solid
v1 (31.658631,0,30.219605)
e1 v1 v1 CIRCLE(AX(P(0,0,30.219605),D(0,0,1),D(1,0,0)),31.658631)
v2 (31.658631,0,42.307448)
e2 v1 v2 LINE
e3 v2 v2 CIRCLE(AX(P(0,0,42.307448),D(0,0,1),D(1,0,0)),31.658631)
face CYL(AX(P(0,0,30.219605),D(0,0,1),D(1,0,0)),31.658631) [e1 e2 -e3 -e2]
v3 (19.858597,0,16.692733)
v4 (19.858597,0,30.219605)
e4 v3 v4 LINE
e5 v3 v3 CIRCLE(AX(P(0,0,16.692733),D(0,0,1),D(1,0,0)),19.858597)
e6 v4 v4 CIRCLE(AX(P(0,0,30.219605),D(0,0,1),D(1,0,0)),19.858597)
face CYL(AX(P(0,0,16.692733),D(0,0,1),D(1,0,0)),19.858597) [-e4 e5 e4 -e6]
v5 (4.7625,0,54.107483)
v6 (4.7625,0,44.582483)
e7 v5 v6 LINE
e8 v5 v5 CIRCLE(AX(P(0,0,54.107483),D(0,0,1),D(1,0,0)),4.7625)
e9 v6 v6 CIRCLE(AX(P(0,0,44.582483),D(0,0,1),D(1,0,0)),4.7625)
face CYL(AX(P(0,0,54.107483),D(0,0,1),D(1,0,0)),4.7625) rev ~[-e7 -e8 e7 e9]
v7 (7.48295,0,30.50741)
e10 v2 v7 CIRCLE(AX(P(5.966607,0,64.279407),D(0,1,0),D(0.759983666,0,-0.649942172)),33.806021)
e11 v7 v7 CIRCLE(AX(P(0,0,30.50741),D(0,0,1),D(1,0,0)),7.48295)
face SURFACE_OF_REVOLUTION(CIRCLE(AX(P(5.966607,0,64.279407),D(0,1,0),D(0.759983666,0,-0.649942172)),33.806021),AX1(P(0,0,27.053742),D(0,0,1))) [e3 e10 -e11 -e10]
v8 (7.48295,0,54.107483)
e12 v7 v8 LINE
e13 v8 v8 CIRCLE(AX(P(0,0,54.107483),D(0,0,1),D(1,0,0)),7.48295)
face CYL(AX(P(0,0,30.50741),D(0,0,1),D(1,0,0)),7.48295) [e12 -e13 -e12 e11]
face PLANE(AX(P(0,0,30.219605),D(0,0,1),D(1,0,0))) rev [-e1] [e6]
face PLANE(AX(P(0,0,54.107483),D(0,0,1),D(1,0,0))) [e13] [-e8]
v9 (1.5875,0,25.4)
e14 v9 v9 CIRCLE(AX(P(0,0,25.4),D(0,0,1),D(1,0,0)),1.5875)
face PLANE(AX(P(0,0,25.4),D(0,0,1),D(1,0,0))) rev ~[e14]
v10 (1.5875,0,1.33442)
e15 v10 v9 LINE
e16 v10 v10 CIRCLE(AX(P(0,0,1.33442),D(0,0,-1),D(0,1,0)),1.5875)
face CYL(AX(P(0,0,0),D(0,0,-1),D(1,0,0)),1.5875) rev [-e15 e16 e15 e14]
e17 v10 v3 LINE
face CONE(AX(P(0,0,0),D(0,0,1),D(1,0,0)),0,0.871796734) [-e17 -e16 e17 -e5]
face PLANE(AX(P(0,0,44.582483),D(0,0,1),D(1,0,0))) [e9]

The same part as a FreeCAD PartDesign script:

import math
import FreeCAD as App
import Part
import Sketcher

V = App.Vector
Q = App.Units.Quantity

doc = App.newDocument("Part")
body = doc.addObject("PartDesign::Body", "Body")

# Sketch on XZ plane
sketch1 = body.newObject("Sketcher::SketchObject", "Sketch")
sketch1.AttachmentSupport = (doc.getObject("XZ_Plane"), [""])
sketch1.MapMode = "FlatFace"
sketch1.addGeometry([
    Part.LineSegment(V(0, 54.107483, 0), V(0, 0, 0)),  # 0
    Part.LineSegment(V(0, 0, 0), V(19.858597, 16.692733, 0)),  # 1
    Part.LineSegment(V(19.858597, 16.692733, 0), V(19.858597, 30.219605, 0)),  # 2
    Part.LineSegment(V(19.858597, 30.219605, 0), V(31.658631, 30.219605, 0)),  # 3
    Part.LineSegment(V(31.658631, 30.219605, 0), V(31.658631, 42.307448, 0)),  # 4
    Part.ArcOfCircle(Part.Circle(V(5.966607, 64.279407, 0), V(0, 0, 1), 33.806021), math.radians(-87.42918), math.radians(-40.537242)),  # 5
    Part.LineSegment(V(7.48295, 30.50741, 0), V(7.48295, 54.107483, 0)),  # 6
    Part.LineSegment(V(7.48295, 54.107483, 0), V(0, 54.107483, 0)),  # 7
], False)
sketch1.addConstraint([
    Sketcher.Constraint("Coincident", 0, 2, 1, 1),
    Sketcher.Constraint("Coincident", 1, 2, 2, 1),
    Sketcher.Constraint("Coincident", 2, 2, 3, 1),
    Sketcher.Constraint("Coincident", 3, 2, 4, 1),
    Sketcher.Constraint("Coincident", 4, 2, 5, 2),
    Sketcher.Constraint("Coincident", 5, 1, 6, 1),
    Sketcher.Constraint("Coincident", 6, 2, 7, 1),
    Sketcher.Constraint("Coincident", 7, 2, 0, 1),
    Sketcher.Constraint("Vertical", 0),
    Sketcher.Constraint("Vertical", 2),
    Sketcher.Constraint("Horizontal", 3),
    Sketcher.Constraint("Vertical", 4),
    Sketcher.Constraint("Vertical", 6),
    Sketcher.Constraint("Horizontal", 7),
    Sketcher.Constraint("Coincident", 0, 2, -1, 1),
    Sketcher.Constraint("Radius", 5, 33.806021),
    Sketcher.Constraint("DistanceX", 7, 2, 7, 1, 7.48295),
    Sketcher.Constraint("DistanceY", 2, 2, 5, 3, 34.059802),
    Sketcher.Constraint("Distance", 1, 25.94246),
    Sketcher.Constraint("DistanceX", 3, 1, 3, 2, 11.800034),
    Sketcher.Constraint("DistanceY", 0, 2, 0, 1, 54.107483),
    Sketcher.Constraint("DistanceY", 2, 1, 2, 2, 13.526872),
    Sketcher.Constraint("DistanceY", 4, 1, 4, 2, 12.087843),
    Sketcher.Constraint("DistanceY", 6, 1, 6, 2, 23.600073),
])
revolution = body.newObject("PartDesign::Revolution", "Revolution")
revolution.Profile = sketch1
revolution.ReferenceAxis = (sketch1, ["V_Axis"])
revolution.Angle = 360

# Sketch on XY plane
sketch2 = body.newObject("Sketcher::SketchObject", "Sketch001")
sketch2.AttachmentSupport = (doc.getObject("XY_Plane"), [""])
sketch2.MapMode = "FlatFace"
sketch2.AttachmentOffset = App.Placement(V(0, 0, 54.107483), App.Rotation())
sketch2.addGeometry(Part.Circle(V(0, 0, 0), V(0, 0, 1), 4.7625), False)
sketch2.addConstraint([
    Sketcher.Constraint("Coincident", 0, 3, -1, 1),
    Sketcher.Constraint("Diameter", 0, Q("0.375 in")),
])
pocket1 = body.newObject("PartDesign::Pocket", "Pocket")
pocket1.Profile = sketch2
pocket1.Length = Q("0.375 in")

# Sketch on XY plane
sketch3 = body.newObject("Sketcher::SketchObject", "Sketch002")
sketch3.AttachmentSupport = (doc.getObject("XY_Plane"), [""])
sketch3.MapMode = "FlatFace"
sketch3.addGeometry(Part.Circle(V(0, 0, 0), V(0, 0, 1), 1.5875), False)
sketch3.addConstraint([
    Sketcher.Constraint("Coincident", 0, 3, -1, 1),
    Sketcher.Constraint("Diameter", 0, Q("0.125 in")),
])
pocket2 = body.newObject("PartDesign::Pocket", "Pocket001")
pocket2.Profile = sketch3
pocket2.Length = Q("1 in")
pocket2.Reversed = True

doc.recompute()
